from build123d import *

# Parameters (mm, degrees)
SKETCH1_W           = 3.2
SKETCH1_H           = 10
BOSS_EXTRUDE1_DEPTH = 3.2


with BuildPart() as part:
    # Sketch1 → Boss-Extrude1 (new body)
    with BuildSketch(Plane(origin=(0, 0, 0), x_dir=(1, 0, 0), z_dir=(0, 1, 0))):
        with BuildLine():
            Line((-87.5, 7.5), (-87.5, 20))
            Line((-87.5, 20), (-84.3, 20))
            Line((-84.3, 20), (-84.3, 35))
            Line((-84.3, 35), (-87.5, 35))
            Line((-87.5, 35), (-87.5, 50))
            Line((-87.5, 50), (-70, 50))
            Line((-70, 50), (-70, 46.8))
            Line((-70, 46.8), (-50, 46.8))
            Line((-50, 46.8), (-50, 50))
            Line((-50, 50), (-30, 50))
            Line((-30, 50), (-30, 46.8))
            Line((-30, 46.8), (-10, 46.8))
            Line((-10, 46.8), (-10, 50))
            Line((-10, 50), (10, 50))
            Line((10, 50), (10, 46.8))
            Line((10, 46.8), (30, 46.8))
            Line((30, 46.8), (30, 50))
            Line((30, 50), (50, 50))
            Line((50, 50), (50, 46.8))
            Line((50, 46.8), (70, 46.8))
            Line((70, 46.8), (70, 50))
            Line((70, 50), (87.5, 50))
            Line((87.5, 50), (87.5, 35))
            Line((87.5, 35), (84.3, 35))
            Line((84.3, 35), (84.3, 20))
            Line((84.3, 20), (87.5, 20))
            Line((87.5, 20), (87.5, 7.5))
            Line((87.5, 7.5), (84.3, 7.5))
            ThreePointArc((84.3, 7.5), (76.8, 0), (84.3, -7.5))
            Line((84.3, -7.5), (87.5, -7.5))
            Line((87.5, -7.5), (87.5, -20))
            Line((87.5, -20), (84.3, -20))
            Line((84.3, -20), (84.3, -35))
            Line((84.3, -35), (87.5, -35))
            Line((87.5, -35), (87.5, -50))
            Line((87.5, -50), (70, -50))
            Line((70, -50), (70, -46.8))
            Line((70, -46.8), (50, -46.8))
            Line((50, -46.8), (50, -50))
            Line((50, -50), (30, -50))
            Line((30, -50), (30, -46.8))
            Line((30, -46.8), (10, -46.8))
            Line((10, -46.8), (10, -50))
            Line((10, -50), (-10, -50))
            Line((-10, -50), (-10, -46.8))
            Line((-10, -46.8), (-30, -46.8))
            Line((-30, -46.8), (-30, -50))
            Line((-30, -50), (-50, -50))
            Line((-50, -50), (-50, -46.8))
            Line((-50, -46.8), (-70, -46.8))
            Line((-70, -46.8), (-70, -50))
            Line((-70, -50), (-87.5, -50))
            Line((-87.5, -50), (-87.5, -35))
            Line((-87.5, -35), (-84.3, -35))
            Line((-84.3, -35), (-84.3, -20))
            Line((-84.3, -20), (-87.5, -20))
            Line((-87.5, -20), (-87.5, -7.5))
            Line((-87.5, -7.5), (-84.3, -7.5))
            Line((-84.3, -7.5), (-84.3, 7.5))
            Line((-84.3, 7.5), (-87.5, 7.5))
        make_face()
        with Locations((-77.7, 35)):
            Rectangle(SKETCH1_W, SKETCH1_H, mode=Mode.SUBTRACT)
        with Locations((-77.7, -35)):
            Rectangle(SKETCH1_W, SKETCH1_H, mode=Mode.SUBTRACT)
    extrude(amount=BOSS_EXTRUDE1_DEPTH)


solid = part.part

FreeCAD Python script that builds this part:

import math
import FreeCAD as App
import Part
import Sketcher


def add_polygon(sketch, points):
    """Adds a closed chain of lines whose ends are joined by coincident constraints."""
    first, n = sketch.GeometryCount, len(points)
    for a, b in zip(points, points[1:] + points[:1]):
        sketch.addGeometry(Part.LineSegment(App.Vector(*a, 0), App.Vector(*b, 0)), False)
    for i in range(n):
        sketch.addConstraint(Sketcher.Constraint("Coincident", first + i, 2, first + (i + 1) % n, 1))

doc = App.newDocument("Part")
body = doc.addObject("PartDesign::Body", "Body")

# Sketch on XZ plane
sketch1 = body.newObject("Sketcher::SketchObject", "Sketch")
sketch1.AttachmentSupport = (doc.getObject("XZ_Plane"), [""])
sketch1.MapMode = "FlatFace"
sketch1.addGeometry(Part.LineSegment(App.Vector(-87.5, -20, 0), App.Vector(-87.5, -7.5, 0)), False)  # 0
sketch1.addGeometry(Part.LineSegment(App.Vector(-87.5, -7.5, 0), App.Vector(-84.3, -7.5, 0)), False)  # 1
sketch1.addGeometry(Part.LineSegment(App.Vector(-84.3, -7.5, 0), App.Vector(-84.3, 7.5, 0)), False)  # 2
sketch1.addGeometry(Part.LineSegment(App.Vector(-84.3, 7.5, 0), App.Vector(-87.5, 7.5, 0)), False)  # 3
sketch1.addGeometry(Part.LineSegment(App.Vector(-87.5, 7.5, 0), App.Vector(-87.5, 20, 0)), False)  # 4
sketch1.addGeometry(Part.LineSegment(App.Vector(-87.5, 20, 0), App.Vector(-84.3, 20, 0)), False)  # 5
sketch1.addGeometry(Part.LineSegment(App.Vector(-84.3, 20, 0), App.Vector(-84.3, 35, 0)), False)  # 6
sketch1.addGeometry(Part.LineSegment(App.Vector(-84.3, 35, 0), App.Vector(-87.5, 35, 0)), False)  # 7
sketch1.addGeometry(Part.LineSegment(App.Vector(-87.5, 35, 0), App.Vector(-87.5, 50, 0)), False)  # 8
sketch1.addGeometry(Part.LineSegment(App.Vector(-87.5, 50, 0), App.Vector(-70, 50, 0)), False)  # 9
sketch1.addGeometry(Part.LineSegment(App.Vector(-70, 50, 0), App.Vector(-70, 46.8, 0)), False)  # 10
sketch1.addGeometry(Part.LineSegment(App.Vector(-70, 46.8, 0), App.Vector(-50, 46.8, 0)), False)  # 11
sketch1.addGeometry(Part.LineSegment(App.Vector(-50, 46.8, 0), App.Vector(-50, 50, 0)), False)  # 12
sketch1.addGeometry(Part.LineSegment(App.Vector(-50, 50, 0), App.Vector(-30, 50, 0)), False)  # 13
sketch1.addGeometry(Part.LineSegment(App.Vector(-30, 50, 0), App.Vector(-30, 46.8, 0)), False)  # 14
sketch1.addGeometry(Part.LineSegment(App.Vector(-30, 46.8, 0), App.Vector(-10, 46.8, 0)), False)  # 15
sketch1.addGeometry(Part.LineSegment(App.Vector(-10, 46.8, 0), App.Vector(-10, 50, 0)), False)  # 16
sketch1.addGeometry(Part.LineSegment(App.Vector(-10, 50, 0), App.Vector(10, 50, 0)), False)  # 17
sketch1.addGeometry(Part.LineSegment(App.Vector(10, 50, 0), App.Vector(10, 46.8, 0)), False)  # 18
sketch1.addGeometry(Part.LineSegment(App.Vector(10, 46.8, 0), App.Vector(30, 46.8, 0)), False)  # 19
sketch1.addGeometry(Part.LineSegment(App.Vector(30, 46.8, 0), App.Vector(30, 50, 0)), False)  # 20
sketch1.addGeometry(Part.LineSegment(App.Vector(30, 50, 0), App.Vector(50, 50, 0)), False)  # 21
sketch1.addGeometry(Part.LineSegment(App.Vector(50, 50, 0), App.Vector(50, 46.8, 0)), False)  # 22
sketch1.addGeometry(Part.LineSegment(App.Vector(50, 46.8, 0), App.Vector(70, 46.8, 0)), False)  # 23
sketch1.addGeometry(Part.LineSegment(App.Vector(70, 46.8, 0), App.Vector(70, 50, 0)), False)  # 24
sketch1.addGeometry(Part.LineSegment(App.Vector(70, 50, 0), App.Vector(87.5, 50, 0)), False)  # 25
sketch1.addGeometry(Part.LineSegment(App.Vector(87.5, 50, 0), App.Vector(87.5, 35, 0)), False)  # 26
sketch1.addGeometry(Part.LineSegment(App.Vector(87.5, 35, 0), App.Vector(84.3, 35, 0)), False)  # 27
sketch1.addGeometry(Part.LineSegment(App.Vector(84.3, 35, 0), App.Vector(84.3, 20, 0)), False)  # 28
sketch1.addGeometry(Part.LineSegment(App.Vector(84.3, 20, 0), App.Vector(87.5, 20, 0)), False)  # 29
sketch1.addGeometry(Part.LineSegment(App.Vector(87.5, 20, 0), App.Vector(87.5, 7.5, 0)), False)  # 30
sketch1.addGeometry(Part.LineSegment(App.Vector(87.5, 7.5, 0), App.Vector(84.3, 7.5, 0)), False)  # 31
sketch1.addGeometry(Part.ArcOfCircle(Part.Circle(App.Vector(84.3, 0, 0), App.Vector(0, 0, 1), 7.5), math.radians(90), math.radians(270)), False)  # 32
sketch1.addGeometry(Part.LineSegment(App.Vector(84.3, -7.5, 0), App.Vector(87.5, -7.5, 0)), False)  # 33
sketch1.addGeometry(Part.LineSegment(App.Vector(87.5, -7.5, 0), App.Vector(87.5, -20, 0)), False)  # 34
sketch1.addGeometry(Part.LineSegment(App.Vector(87.5, -20, 0), App.Vector(84.3, -20, 0)), False)  # 35
sketch1.addGeometry(Part.LineSegment(App.Vector(84.3, -20, 0), App.Vector(84.3, -35, 0)), False)  # 36
sketch1.addGeometry(Part.LineSegment(App.Vector(84.3, -35, 0), App.Vector(87.5, -35, 0)), False)  # 37
sketch1.addGeometry(Part.LineSegment(App.Vector(87.5, -35, 0), App.Vector(87.5, -50, 0)), False)  # 38
sketch1.addGeometry(Part.LineSegment(App.Vector(87.5, -50, 0), App.Vector(70, -50, 0)), False)  # 39
sketch1.addGeometry(Part.LineSegment(App.Vector(70, -50, 0), App.Vector(70, -46.8, 0)), False)  # 40
sketch1.addGeometry(Part.LineSegment(App.Vector(70, -46.8, 0), App.Vector(50, -46.8, 0)), False)  # 41
sketch1.addGeometry(Part.LineSegment(App.Vector(50, -46.8, 0), App.Vector(50, -50, 0)), False)  # 42
sketch1.addGeometry(Part.LineSegment(App.Vector(50, -50, 0), App.Vector(30, -50, 0)), False)  # 43
sketch1.addGeometry(Part.LineSegment(App.Vector(30, -50, 0), App.Vector(30, -46.8, 0)), False)  # 44
sketch1.addGeometry(Part.LineSegment(App.Vector(30, -46.8, 0), App.Vector(10, -46.8, 0)), False)  # 45
sketch1.addGeometry(Part.LineSegment(App.Vector(10, -46.8, 0), App.Vector(10, -50, 0)), False)  # 46
sketch1.addGeometry(Part.LineSegment(App.Vector(10, -50, 0), App.Vector(-10, -50, 0)), False)  # 47
sketch1.addGeometry(Part.LineSegment(App.Vector(-10, -50, 0), App.Vector(-10, -46.8, 0)), False)  # 48
sketch1.addGeometry(Part.LineSegment(App.Vector(-10, -46.8, 0), App.Vector(-30, -46.8, 0)), False)  # 49
sketch1.addGeometry(Part.LineSegment(App.Vector(-30, -46.8, 0), App.Vector(-30, -50, 0)), False)  # 50
sketch1.addGeometry(Part.LineSegment(App.Vector(-30, -50, 0), App.Vector(-50, -50, 0)), False)  # 51
sketch1.addGeometry(Part.LineSegment(App.Vector(-50, -50, 0), App.Vector(-50, -46.8, 0)), False)  # 52
sketch1.addGeometry(Part.LineSegment(App.Vector(-50, -46.8, 0), App.Vector(-70, -46.8, 0)), False)  # 53
sketch1.addGeometry(Part.LineSegment(App.Vector(-70, -46.8, 0), App.Vector(-70, -50, 0)), False)  # 54
sketch1.addGeometry(Part.LineSegment(App.Vector(-70, -50, 0), App.Vector(-87.5, -50, 0)), False)  # 55
sketch1.addGeometry(Part.LineSegment(App.Vector(-87.5, -50, 0), App.Vector(-87.5, -35, 0)), False)  # 56
sketch1.addGeometry(Part.LineSegment(App.Vector(-87.5, -35, 0), App.Vector(-84.3, -35, 0)), False)  # 57
sketch1.addGeometry(Part.LineSegment(App.Vector(-84.3, -35, 0), App.Vector(-84.3, -20, 0)), False)  # 58
sketch1.addGeometry(Part.LineSegment(App.Vector(-84.3, -20, 0), App.Vector(-87.5, -20, 0)), False)  # 59
add_polygon(sketch1, [(-79.3, 40), (-79.3, 30), (-76.1, 30), (-76.1, 40)])  # lines 60-63
add_polygon(sketch1, [(-79.3, -30), (-79.3, -40), (-76.1, -40), (-76.1, -30)])  # lines 64-67
sketch1.addConstraint(Sketcher.Constraint("Coincident", 0, 2, 1, 1))
sketch1.addConstraint(Sketcher.Constraint("Coincident", 1, 2, 2, 1))
sketch1.addConstraint(Sketcher.Constraint("Coincident", 2, 2, 3, 1))
sketch1.addConstraint(Sketcher.Constraint("Coincident", 3, 2, 4, 1))
sketch1.addConstraint(Sketcher.Constraint("Coincident", 4, 2, 5, 1))
sketch1.addConstraint(Sketcher.Constraint("Coincident", 5, 2, 6, 1))
sketch1.addConstraint(Sketcher.Constraint("Coincident", 6, 2, 7, 1))
sketch1.addConstraint(Sketcher.Constraint("Coincident", 7, 2, 8, 1))
sketch1.addConstraint(Sketcher.Constraint("Coincident", 8, 2, 9, 1))
sketch1.addConstraint(Sketcher.Constraint("Coincident", 9, 2, 10, 1))
sketch1.addConstraint(Sketcher.Constraint("Coincident", 10, 2, 11, 1))
sketch1.addConstraint(Sketcher.Constraint("Coincident", 11, 2, 12, 1))
sketch1.addConstraint(Sketcher.Constraint("Coincident", 12, 2, 13, 1))
sketch1.addConstraint(Sketcher.Constraint("Coincident", 13, 2, 14, 1))
sketch1.addConstraint(Sketcher.Constraint("Coincident", 14, 2, 15, 1))
sketch1.addConstraint(Sketcher.Constraint("Coincident", 15, 2, 16, 1))
sketch1.addConstraint(Sketcher.Constraint("Coincident", 16, 2, 17, 1))
sketch1.addConstraint(Sketcher.Constraint("Coincident", 17, 2, 18, 1))
sketch1.addConstraint(Sketcher.Constraint("Coincident", 18, 2, 19, 1))
sketch1.addConstraint(Sketcher.Constraint("Coincident", 19, 2, 20, 1))
sketch1.addConstraint(Sketcher.Constraint("Coincident", 20, 2, 21, 1))
sketch1.addConstraint(Sketcher.Constraint("Coincident", 21, 2, 22, 1))
sketch1.addConstraint(Sketcher.Constraint("Coincident", 22, 2, 23, 1))
sketch1.addConstraint(Sketcher.Constraint("Coincident", 23, 2, 24, 1))
sketch1.addConstraint(Sketcher.Constraint("Coincident", 24, 2, 25, 1))
sketch1.addConstraint(Sketcher.Constraint("Coincident", 25, 2, 26, 1))
sketch1.addConstraint(Sketcher.Constraint("Coincident", 26, 2, 27, 1))
sketch1.addConstraint(Sketcher.Constraint("Coincident", 27, 2, 28, 1))
sketch1.addConstraint(Sketcher.Constraint("Coincident", 28, 2, 29, 1))
sketch1.addConstraint(Sketcher.Constraint("Coincident", 29, 2, 30, 1))
sketch1.addConstraint(Sketcher.Constraint("Coincident", 30, 2, 31, 1))
sketch1.addConstraint(Sketcher.Constraint("Tangent", 31, 2, 32, 1))
sketch1.addConstraint(Sketcher.Constraint("Tangent", 32, 2, 33, 1))
sketch1.addConstraint(Sketcher.Constraint("Coincident", 33, 2, 34, 1))
sketch1.addConstraint(Sketcher.Constraint("Coincident", 34, 2, 35, 1))
sketch1.addConstraint(Sketcher.Constraint("Coincident", 35, 2, 36, 1))
sketch1.addConstraint(Sketcher.Constraint("Coincident", 36, 2, 37, 1))
sketch1.addConstraint(Sketcher.Constraint("Coincident", 37, 2, 38, 1))
sketch1.addConstraint(Sketcher.Constraint("Coincident", 38, 2, 39, 1))
sketch1.addConstraint(Sketcher.Constraint("Coincident", 39, 2, 40, 1))
sketch1.addConstraint(Sketcher.Constraint("Coincident", 40, 2, 41, 1))
sketch1.addConstraint(Sketcher.Constraint("Coincident", 41, 2, 42, 1))
sketch1.addConstraint(Sketcher.Constraint("Coincident", 42, 2, 43, 1))
sketch1.addConstraint(Sketcher.Constraint("Coincident", 43, 2, 44, 1))
sketch1.addConstraint(Sketcher.Constraint("Coincident", 44, 2, 45, 1))
sketch1.addConstraint(Sketcher.Constraint("Coincident", 45, 2, 46, 1))
sketch1.addConstraint(Sketcher.Constraint("Coincident", 46, 2, 47, 1))
sketch1.addConstraint(Sketcher.Constraint("Coincident", 47, 2, 48, 1))
sketch1.addConstraint(Sketcher.Constraint("Coincident", 48, 2, 49, 1))
sketch1.addConstraint(Sketcher.Constraint("Coincident", 49, 2, 50, 1))
sketch1.addConstraint(Sketcher.Constraint("Coincident", 50, 2, 51, 1))
sketch1.addConstraint(Sketcher.Constraint("Coincident", 51, 2, 52, 1))
sketch1.addConstraint(Sketcher.Constraint("Coincident", 52, 2, 53, 1))
sketch1.addConstraint(Sketcher.Constraint("Coincident", 53, 2, 54, 1))
sketch1.addConstraint(Sketcher.Constraint("Coincident", 54, 2, 55, 1))
sketch1.addConstraint(Sketcher.Constraint("Coincident", 55, 2, 56, 1))
sketch1.addConstraint(Sketcher.Constraint("Coincident", 56, 2, 57, 1))
sketch1.addConstraint(Sketcher.Constraint("Coincident", 57, 2, 58, 1))
sketch1.addConstraint(Sketcher.Constraint("Coincident", 58, 2, 59, 1))
sketch1.addConstraint(Sketcher.Constraint("Coincident", 59, 2, 0, 1))
sketch1.addConstraint(Sketcher.Constraint("Vertical", 0))
sketch1.addConstraint(Sketcher.Constraint("Horizontal", 1))
sketch1.addConstraint(Sketcher.Constraint("Vertical", 2))
sketch1.addConstraint(Sketcher.Constraint("Horizontal", 3))
sketch1.addConstraint(Sketcher.Constraint("Vertical", 4))
sketch1.addConstraint(Sketcher.Constraint("Horizontal", 5))
sketch1.addConstraint(Sketcher.Constraint("Vertical", 6))
sketch1.addConstraint(Sketcher.Constraint("Horizontal", 7))
sketch1.addConstraint(Sketcher.Constraint("Vertical", 8))
sketch1.addConstraint(Sketcher.Constraint("Horizontal", 9))
sketch1.addConstraint(Sketcher.Constraint("Vertical", 10))
sketch1.addConstraint(Sketcher.Constraint("Horizontal", 11))
sketch1.addConstraint(Sketcher.Constraint("Vertical", 12))
sketch1.addConstraint(Sketcher.Constraint("Horizontal", 13))
sketch1.addConstraint(Sketcher.Constraint("Vertical", 14))
sketch1.addConstraint(Sketcher.Constraint("Horizontal", 15))
sketch1.addConstraint(Sketcher.Constraint("Vertical", 16))
sketch1.addConstraint(Sketcher.Constraint("Horizontal", 17))
sketch1.addConstraint(Sketcher.Constraint("Vertical", 18))
sketch1.addConstraint(Sketcher.Constraint("Horizontal", 19))
sketch1.addConstraint(Sketcher.Constraint("Vertical", 20))
sketch1.addConstraint(Sketcher.Constraint("Horizontal", 21))
sketch1.addConstraint(Sketcher.Constraint("Vertical", 22))
sketch1.addConstraint(Sketcher.Constraint("Horizontal", 23))
sketch1.addConstraint(Sketcher.Constraint("Vertical", 24))
sketch1.addConstraint(Sketcher.Constraint("Horizontal", 25))
sketch1.addConstraint(Sketcher.Constraint("Vertical", 26))
sketch1.addConstraint(Sketcher.Constraint("Horizontal", 27))
sketch1.addConstraint(Sketcher.Constraint("Vertical", 28))
sketch1.addConstraint(Sketcher.Constraint("Horizontal", 29))
sketch1.addConstraint(Sketcher.Constraint("Vertical", 30))
sketch1.addConstraint(Sketcher.Constraint("Horizontal", 31))
sketch1.addConstraint(Sketcher.Constraint("Horizontal", 33))
sketch1.addConstraint(Sketcher.Constraint("Vertical", 34))
sketch1.addConstraint(Sketcher.Constraint("Horizontal", 35))
sketch1.addConstraint(Sketcher.Constraint("Vertical", 36))
sketch1.addConstraint(Sketcher.Constraint("Horizontal", 37))
sketch1.addConstraint(Sketcher.Constraint("Vertical", 38))
sketch1.addConstraint(Sketcher.Constraint("Horizontal", 39))
sketch1.addConstraint(Sketcher.Constraint("Vertical", 40))
sketch1.addConstraint(Sketcher.Constraint("Horizontal", 41))
sketch1.addConstraint(Sketcher.Constraint("Vertical", 42))
sketch1.addConstraint(Sketcher.Constraint("Horizontal", 43))
sketch1.addConstraint(Sketcher.Constraint("Vertical", 44))
sketch1.addConstraint(Sketcher.Constraint("Horizontal", 45))
sketch1.addConstraint(Sketcher.Constraint("Vertical", 46))
sketch1.addConstraint(Sketcher.Constraint("Horizontal", 47))
sketch1.addConstraint(Sketcher.Constraint("Vertical", 48))
sketch1.addConstraint(Sketcher.Constraint("Horizontal", 49))
sketch1.addConstraint(Sketcher.Constraint("Vertical", 50))
sketch1.addConstraint(Sketcher.Constraint("Horizontal", 51))
sketch1.addConstraint(Sketcher.Constraint("Vertical", 52))
sketch1.addConstraint(Sketcher.Constraint("Horizontal", 53))
sketch1.addConstraint(Sketcher.Constraint("Vertical", 54))
sketch1.addConstraint(Sketcher.Constraint("Horizontal", 55))
sketch1.addConstraint(Sketcher.Constraint("Vertical", 56))
sketch1.addConstraint(Sketcher.Constraint("Horizontal", 57))
sketch1.addConstraint(Sketcher.Constraint("Vertical", 58))
sketch1.addConstraint(Sketcher.Constraint("Horizontal", 59))
sketch1.addConstraint(Sketcher.Constraint("Vertical", 60))
sketch1.addConstraint(Sketcher.Constraint("Horizontal", 61))
sketch1.addConstraint(Sketcher.Constraint("Vertical", 62))
sketch1.addConstraint(Sketcher.Constraint("Horizontal", 63))
sketch1.addConstraint(Sketcher.Constraint("Vertical", 64))
sketch1.addConstraint(Sketcher.Constraint("Horizontal", 65))
sketch1.addConstraint(Sketcher.Constraint("Vertical", 66))
sketch1.addConstraint(Sketcher.Constraint("Horizontal", 67))
sketch1.addConstraint(Sketcher.Constraint("Symmetric", 0, 2, 30, 2, -1, 1))
sketch1.addConstraint(Sketcher.Constraint("Symmetric", 2, 2, 32, 2, -1, 1))
sketch1.addConstraint(Sketcher.Constraint("Symmetric", 4, 2, 34, 2, -1, 1))
sketch1.addConstraint(Sketcher.Constraint("Symmetric", 6, 2, 36, 2, -1, 1))
sketch1.addConstraint(Sketcher.Constraint("Symmetric", 8, 2, 38, 2, -1, 1))
sketch1.addConstraint(Sketcher.Constraint("Symmetric", 10, 2, 40, 2, -1, 1))
sketch1.addConstraint(Sketcher.Constraint("Symmetric", 12, 2, 42, 2, -1, 1))
sketch1.addConstraint(Sketcher.Constraint("Symmetric", 14, 2, 44, 2, -1, 1))
sketch1.addConstraint(Sketcher.Constraint("Symmetric", 16, 2, 46, 2, -1, 1))
sketch1.addConstraint(Sketcher.Constraint("Symmetric", 18, 2, 48, 2, -1, 1))
sketch1.addConstraint(Sketcher.Constraint("Symmetric", 20, 2, 50, 2, -1, 1))
sketch1.addConstraint(Sketcher.Constraint("Symmetric", 22, 2, 52, 2, -1, 1))
sketch1.addConstraint(Sketcher.Constraint("Symmetric", 24, 2, 54, 2, -1, 1))
sketch1.addConstraint(Sketcher.Constraint("Symmetric", 26, 2, 56, 2, -1, 1))
sketch1.addConstraint(Sketcher.Constraint("Symmetric", 28, 2, 58, 2, -1, 1))
sketch1.addConstraint(Sketcher.Constraint("Symmetric", 15, 2, 18, 2, -2))
sketch1.addConstraint(Sketcher.Constraint("Symmetric", 13, 2, 20, 2, -2))
sketch1.addConstraint(Sketcher.Constraint("Symmetric", 11, 2, 22, 2, -2))
sketch1.addConstraint(Sketcher.Constraint("Symmetric", 9, 2, 24, 2, -2))
sketch1.addConstraint(Sketcher.Constraint("Symmetric", 7, 2, 26, 2, -2))
sketch1.addConstraint(Sketcher.Constraint("Symmetric", 5, 2, 28, 2, -2))
sketch1.addConstraint(Sketcher.Constraint("Symmetric", 3, 2, 30, 2, -2))
sketch1.addConstraint(Sketcher.Constraint("Symmetric", 63, 2, 64, 2, -1))
sketch1.addConstraint(Sketcher.Constraint("Symmetric", 61, 2, 66, 2, -1))
sketch1.addConstraint(Sketcher.Constraint("Horizontal", 9, 2, 12, 2))
sketch1.addConstraint(Sketcher.Constraint("Horizontal", 11, 2, 14, 2))
sketch1.addConstraint(Sketcher.Constraint("Horizontal", 13, 2, 16, 2))
sketch1.addConstraint(Sketcher.Constraint("Vertical", 2, 2, 5, 2))
sketch1.addConstraint(Sketcher.Constraint("Vertical", 4, 2, 7, 2))
sketch1.addConstraint(Sketcher.Constraint("Equal", 11, 13))
sketch1.addConstraint(Sketcher.Constraint("Equal", 13, 15))
sketch1.addConstraint(Sketcher.Constraint("Equal", 15, 17))
sketch1.addConstraint(Sketcher.Constraint("Equal", 59, 61))
sketch1.addConstraint(Sketcher.Constraint("Equal", 2, 6))
sketch1.addConstraint(Sketcher.Constraint("Equal", 6, 8))
sketch1.addConstraint(Sketcher.Constraint("Equal", 67, 10))
sketch1.addConstraint(Sketcher.Constraint("Radius", 32, 7.5))
sketch1.addConstraint(Sketcher.Constraint("DistanceX", 11, 1, 11, 2, 20.0))
sketch1.addConstraint(Sketcher.Constraint("DistanceY", 60, 2, 60, 1, 10.0))
sketch1.addConstraint(Sketcher.Constraint("DistanceX", 1, 1, 1, 2, 3.2))
sketch1.addConstraint(Sketcher.Constraint("DistanceX", 9, 1, 9, 2, 17.5))
sketch1.addConstraint(Sketcher.Constraint("DistanceY", 0, 1, 0, 2, 12.5))
sketch1.addConstraint(Sketcher.Constraint("DistanceY", -1, 1, 60, 2, 30.0))
sketch1.addConstraint(Sketcher.Constraint("DistanceX", 60, 2, -1, 1, 79.3))
pad1 = body.newObject("PartDesign::Pad", "Pad")
pad1.Profile = sketch1
pad1.Length = 3.2
pad1.Reversed = True

doc.recompute()
